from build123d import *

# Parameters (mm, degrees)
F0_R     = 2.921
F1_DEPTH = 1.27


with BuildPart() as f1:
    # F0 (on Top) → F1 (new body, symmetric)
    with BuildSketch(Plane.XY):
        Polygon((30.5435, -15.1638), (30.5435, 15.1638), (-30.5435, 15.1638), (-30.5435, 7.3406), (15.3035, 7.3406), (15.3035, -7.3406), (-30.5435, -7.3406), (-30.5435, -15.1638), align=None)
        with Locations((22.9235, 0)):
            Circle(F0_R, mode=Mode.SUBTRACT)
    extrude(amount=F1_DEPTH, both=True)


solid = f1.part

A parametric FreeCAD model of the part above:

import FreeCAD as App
import Part
import Sketcher

V = App.Vector
Q = App.Units.Quantity


def add_polygon(sketch, points):
    """Adds a closed chain of lines whose ends are joined by coincident constraints."""
    first, n = sketch.GeometryCount, len(points)
    for a, b in zip(points, points[1:] + points[:1]):
        sketch.addGeometry(Part.LineSegment(App.Vector(*a, 0), App.Vector(*b, 0)), False)
    for i in range(n):
        sketch.addConstraint(Sketcher.Constraint("Coincident", first + i, 2, first + (i + 1) % n, 1))

doc = App.newDocument("Part")
body = doc.addObject("PartDesign::Body", "Body")

sketch1 = body.newObject("Sketcher::SketchObject", "Sketch")
sketch1.AttachmentSupport = (doc.getObject("XY_Plane"), [""])
sketch1.MapMode = "FlatFace"
add_polygon(sketch1, [(30.5435, -15.1638), (30.5435, 15.1638), (-30.5435, 15.1638), (-30.5435, 7.3406), (15.3035, 7.3406), (15.3035, -7.3406), (-30.5435, -7.3406), (-30.5435, -15.1638)])
sketch1.addGeometry(Part.Circle(V(22.9235, 0, 0), V(0, 0, 1), 2.921), False)
sketch1.addConstraint([
    Sketcher.Constraint("Vertical", 0),
    Sketcher.Constraint("Horizontal", 1),
    Sketcher.Constraint("Vertical", 2),
    Sketcher.Constraint("Horizontal", 3),
    Sketcher.Constraint("Vertical", 4),
    Sketcher.Constraint("Horizontal", 5),
    Sketcher.Constraint("Vertical", 6),
    Sketcher.Constraint("Horizontal", 7),
    Sketcher.Constraint("Symmetric", 0, 2, 6, 2, -1, 1),
    Sketcher.Constraint("Symmetric", 2, 2, 5, 2, -1),
    Sketcher.Constraint("PointOnObject", 8, 3, -1),
    Sketcher.Constraint("Diameter", 8, Q("0.23 in")),
    Sketcher.Constraint("DistanceX", 8, 3, 0, 2, Q("0.3 in")),
    Sketcher.Constraint("DistanceX", 3, 2, 8, 3, Q("0.3 in")),
    Sketcher.Constraint("DistanceX", 1, 2, 1, 1, Q("2.405 in")),
    Sketcher.Constraint("DistanceY", 0, 1, 0, 2, Q("1.194 in")),
    Sketcher.Constraint("DistanceY", 2, 2, 2, 1, Q("0.308 in")),
])
pad1 = body.newObject("PartDesign::Pad", "Pad")
pad1.Profile = sketch1
pad1.Length = Q("0.1 in")
pad1.Midplane = True

doc.recompute()
